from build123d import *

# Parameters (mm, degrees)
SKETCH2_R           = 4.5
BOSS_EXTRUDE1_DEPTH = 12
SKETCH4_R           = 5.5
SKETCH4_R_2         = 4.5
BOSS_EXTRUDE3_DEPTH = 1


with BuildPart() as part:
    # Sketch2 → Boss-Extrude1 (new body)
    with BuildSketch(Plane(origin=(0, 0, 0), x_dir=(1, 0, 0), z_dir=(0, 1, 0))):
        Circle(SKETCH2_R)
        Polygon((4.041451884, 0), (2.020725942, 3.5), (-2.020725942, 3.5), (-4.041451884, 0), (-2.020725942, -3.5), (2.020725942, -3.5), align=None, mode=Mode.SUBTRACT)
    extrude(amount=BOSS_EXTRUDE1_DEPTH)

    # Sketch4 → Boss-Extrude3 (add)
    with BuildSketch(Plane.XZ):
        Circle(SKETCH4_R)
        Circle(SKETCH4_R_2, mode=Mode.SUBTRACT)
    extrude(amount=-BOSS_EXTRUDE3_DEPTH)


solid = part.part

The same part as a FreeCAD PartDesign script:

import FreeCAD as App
import Part
import Sketcher
Q = App.Units.Quantity


def add_polygon(sketch, points):
    """Adds a closed chain of lines whose ends are joined by coincident constraints."""
    first, n = sketch.GeometryCount, len(points)
    for a, b in zip(points, points[1:] + points[:1]):
        sketch.addGeometry(Part.LineSegment(App.Vector(*a, 0), App.Vector(*b, 0)), False)
    for i in range(n):
        sketch.addConstraint(Sketcher.Constraint("Coincident", first + i, 2, first + (i + 1) % n, 1))

doc = App.newDocument("Part")
params = doc.addObject("Spreadsheet::Sheet", "Params")
for row, (alias, value) in enumerate([
    ("sketch1_diameter", "9 mm"),
    ("pad1_length", "12 mm"),
    ("sketch2_diameter", "11 mm"),
    ("sketch2_diameter2", "9 mm"),
    ("pad2_length", "1 mm"),
], start=1):
    params.set(f"A{row}", alias)
    params.set(f"B{row}", "=" + value)
    params.setAlias(f"B{row}", alias)

body = doc.addObject("PartDesign::Body", "Body")

sketch1 = doc.addObject("Sketcher::SketchObject", "Sketch")
body.addObject(sketch1)
sketch1.AttachmentSupport = (doc.XZ_Plane, [""])
sketch1.MapMode = "FlatFace"
sketch1.addGeometry(Part.Circle(App.Vector(0, 0, 0), App.Vector(0, 0, 1), 4.5), False)
add_polygon(sketch1, [(2, -3.5), (4, 0), (2, 3.5), (-2, 3.5), (-4, 0), (-2, -3.5)])
sketch1.addConstraint(Sketcher.Constraint("Horizontal", 3))
sketch1.addConstraint(Sketcher.Constraint("Horizontal", 6))
sketch1.addConstraint(Sketcher.Constraint("Coincident", 0, 3, -1, 1))
sketch1.addConstraint(Sketcher.Constraint("Symmetric", 1, 2, 4, 2, -1, 1))
sketch1.addConstraint(Sketcher.Constraint("Symmetric", 2, 2, 5, 2, -1, 1))
sketch1.addConstraint(Sketcher.Constraint("PointOnObject", 1, 2, -1))
sketch1.addConstraint(Sketcher.Constraint("Parallel", 1, 4))
sketch1.addConstraint(Sketcher.Constraint("Vertical", 3, 2, 5, 2))
sketch1.addConstraint(Sketcher.Constraint("Diameter", 0, Q("9 mm")))
sketch1.addConstraint(Sketcher.Constraint("Angle", 1, Q("60 deg")))
sketch1.addConstraint(Sketcher.Constraint("DistanceY", 5, 2, 3, 2, Q("7 mm")))
sketch1.addConstraint(Sketcher.Constraint("DistanceX", 3, 2, 3, 1, Q("4.041452 mm")))
sketch1.setExpression("Constraints[14]", "Params.sketch1_diameter")
pad1 = doc.addObject("PartDesign::Pad", "Pad")
body.addObject(pad1)
pad1.Profile = sketch1
pad1.setExpression("Length", "Params.pad1_length")
pad1.Reversed = True

sketch2 = doc.addObject("Sketcher::SketchObject", "Sketch001")
body.addObject(sketch2)
sketch2.AttachmentSupport = (doc.XZ_Plane, [""])
sketch2.MapMode = "FlatFace"
sketch2.addGeometry(Part.Circle(App.Vector(0, 0, 0), App.Vector(0, 0, 1), 5.5), False)
sketch2.addGeometry(Part.Circle(App.Vector(0, 0, 0), App.Vector(0, 0, 1), 4.5), False)
sketch2.addConstraint(Sketcher.Constraint("Coincident", 0, 3, -1, 1))
sketch2.addConstraint(Sketcher.Constraint("Coincident", 1, 3, -1, 1))
sketch2.addConstraint(Sketcher.Constraint("Diameter", 0, Q("11 mm")))
sketch2.addConstraint(Sketcher.Constraint("Diameter", 1, Q("9 mm")))
sketch2.setExpression("Constraints[2]", "Params.sketch2_diameter")
sketch2.setExpression("Constraints[3]", "Params.sketch2_diameter2")
pad2 = doc.addObject("PartDesign::Pad", "Pad001")
body.addObject(pad2)
pad2.Profile = sketch2
pad2.setExpression("Length", "Params.pad2_length")
pad2.Reversed = True

doc.recompute()
